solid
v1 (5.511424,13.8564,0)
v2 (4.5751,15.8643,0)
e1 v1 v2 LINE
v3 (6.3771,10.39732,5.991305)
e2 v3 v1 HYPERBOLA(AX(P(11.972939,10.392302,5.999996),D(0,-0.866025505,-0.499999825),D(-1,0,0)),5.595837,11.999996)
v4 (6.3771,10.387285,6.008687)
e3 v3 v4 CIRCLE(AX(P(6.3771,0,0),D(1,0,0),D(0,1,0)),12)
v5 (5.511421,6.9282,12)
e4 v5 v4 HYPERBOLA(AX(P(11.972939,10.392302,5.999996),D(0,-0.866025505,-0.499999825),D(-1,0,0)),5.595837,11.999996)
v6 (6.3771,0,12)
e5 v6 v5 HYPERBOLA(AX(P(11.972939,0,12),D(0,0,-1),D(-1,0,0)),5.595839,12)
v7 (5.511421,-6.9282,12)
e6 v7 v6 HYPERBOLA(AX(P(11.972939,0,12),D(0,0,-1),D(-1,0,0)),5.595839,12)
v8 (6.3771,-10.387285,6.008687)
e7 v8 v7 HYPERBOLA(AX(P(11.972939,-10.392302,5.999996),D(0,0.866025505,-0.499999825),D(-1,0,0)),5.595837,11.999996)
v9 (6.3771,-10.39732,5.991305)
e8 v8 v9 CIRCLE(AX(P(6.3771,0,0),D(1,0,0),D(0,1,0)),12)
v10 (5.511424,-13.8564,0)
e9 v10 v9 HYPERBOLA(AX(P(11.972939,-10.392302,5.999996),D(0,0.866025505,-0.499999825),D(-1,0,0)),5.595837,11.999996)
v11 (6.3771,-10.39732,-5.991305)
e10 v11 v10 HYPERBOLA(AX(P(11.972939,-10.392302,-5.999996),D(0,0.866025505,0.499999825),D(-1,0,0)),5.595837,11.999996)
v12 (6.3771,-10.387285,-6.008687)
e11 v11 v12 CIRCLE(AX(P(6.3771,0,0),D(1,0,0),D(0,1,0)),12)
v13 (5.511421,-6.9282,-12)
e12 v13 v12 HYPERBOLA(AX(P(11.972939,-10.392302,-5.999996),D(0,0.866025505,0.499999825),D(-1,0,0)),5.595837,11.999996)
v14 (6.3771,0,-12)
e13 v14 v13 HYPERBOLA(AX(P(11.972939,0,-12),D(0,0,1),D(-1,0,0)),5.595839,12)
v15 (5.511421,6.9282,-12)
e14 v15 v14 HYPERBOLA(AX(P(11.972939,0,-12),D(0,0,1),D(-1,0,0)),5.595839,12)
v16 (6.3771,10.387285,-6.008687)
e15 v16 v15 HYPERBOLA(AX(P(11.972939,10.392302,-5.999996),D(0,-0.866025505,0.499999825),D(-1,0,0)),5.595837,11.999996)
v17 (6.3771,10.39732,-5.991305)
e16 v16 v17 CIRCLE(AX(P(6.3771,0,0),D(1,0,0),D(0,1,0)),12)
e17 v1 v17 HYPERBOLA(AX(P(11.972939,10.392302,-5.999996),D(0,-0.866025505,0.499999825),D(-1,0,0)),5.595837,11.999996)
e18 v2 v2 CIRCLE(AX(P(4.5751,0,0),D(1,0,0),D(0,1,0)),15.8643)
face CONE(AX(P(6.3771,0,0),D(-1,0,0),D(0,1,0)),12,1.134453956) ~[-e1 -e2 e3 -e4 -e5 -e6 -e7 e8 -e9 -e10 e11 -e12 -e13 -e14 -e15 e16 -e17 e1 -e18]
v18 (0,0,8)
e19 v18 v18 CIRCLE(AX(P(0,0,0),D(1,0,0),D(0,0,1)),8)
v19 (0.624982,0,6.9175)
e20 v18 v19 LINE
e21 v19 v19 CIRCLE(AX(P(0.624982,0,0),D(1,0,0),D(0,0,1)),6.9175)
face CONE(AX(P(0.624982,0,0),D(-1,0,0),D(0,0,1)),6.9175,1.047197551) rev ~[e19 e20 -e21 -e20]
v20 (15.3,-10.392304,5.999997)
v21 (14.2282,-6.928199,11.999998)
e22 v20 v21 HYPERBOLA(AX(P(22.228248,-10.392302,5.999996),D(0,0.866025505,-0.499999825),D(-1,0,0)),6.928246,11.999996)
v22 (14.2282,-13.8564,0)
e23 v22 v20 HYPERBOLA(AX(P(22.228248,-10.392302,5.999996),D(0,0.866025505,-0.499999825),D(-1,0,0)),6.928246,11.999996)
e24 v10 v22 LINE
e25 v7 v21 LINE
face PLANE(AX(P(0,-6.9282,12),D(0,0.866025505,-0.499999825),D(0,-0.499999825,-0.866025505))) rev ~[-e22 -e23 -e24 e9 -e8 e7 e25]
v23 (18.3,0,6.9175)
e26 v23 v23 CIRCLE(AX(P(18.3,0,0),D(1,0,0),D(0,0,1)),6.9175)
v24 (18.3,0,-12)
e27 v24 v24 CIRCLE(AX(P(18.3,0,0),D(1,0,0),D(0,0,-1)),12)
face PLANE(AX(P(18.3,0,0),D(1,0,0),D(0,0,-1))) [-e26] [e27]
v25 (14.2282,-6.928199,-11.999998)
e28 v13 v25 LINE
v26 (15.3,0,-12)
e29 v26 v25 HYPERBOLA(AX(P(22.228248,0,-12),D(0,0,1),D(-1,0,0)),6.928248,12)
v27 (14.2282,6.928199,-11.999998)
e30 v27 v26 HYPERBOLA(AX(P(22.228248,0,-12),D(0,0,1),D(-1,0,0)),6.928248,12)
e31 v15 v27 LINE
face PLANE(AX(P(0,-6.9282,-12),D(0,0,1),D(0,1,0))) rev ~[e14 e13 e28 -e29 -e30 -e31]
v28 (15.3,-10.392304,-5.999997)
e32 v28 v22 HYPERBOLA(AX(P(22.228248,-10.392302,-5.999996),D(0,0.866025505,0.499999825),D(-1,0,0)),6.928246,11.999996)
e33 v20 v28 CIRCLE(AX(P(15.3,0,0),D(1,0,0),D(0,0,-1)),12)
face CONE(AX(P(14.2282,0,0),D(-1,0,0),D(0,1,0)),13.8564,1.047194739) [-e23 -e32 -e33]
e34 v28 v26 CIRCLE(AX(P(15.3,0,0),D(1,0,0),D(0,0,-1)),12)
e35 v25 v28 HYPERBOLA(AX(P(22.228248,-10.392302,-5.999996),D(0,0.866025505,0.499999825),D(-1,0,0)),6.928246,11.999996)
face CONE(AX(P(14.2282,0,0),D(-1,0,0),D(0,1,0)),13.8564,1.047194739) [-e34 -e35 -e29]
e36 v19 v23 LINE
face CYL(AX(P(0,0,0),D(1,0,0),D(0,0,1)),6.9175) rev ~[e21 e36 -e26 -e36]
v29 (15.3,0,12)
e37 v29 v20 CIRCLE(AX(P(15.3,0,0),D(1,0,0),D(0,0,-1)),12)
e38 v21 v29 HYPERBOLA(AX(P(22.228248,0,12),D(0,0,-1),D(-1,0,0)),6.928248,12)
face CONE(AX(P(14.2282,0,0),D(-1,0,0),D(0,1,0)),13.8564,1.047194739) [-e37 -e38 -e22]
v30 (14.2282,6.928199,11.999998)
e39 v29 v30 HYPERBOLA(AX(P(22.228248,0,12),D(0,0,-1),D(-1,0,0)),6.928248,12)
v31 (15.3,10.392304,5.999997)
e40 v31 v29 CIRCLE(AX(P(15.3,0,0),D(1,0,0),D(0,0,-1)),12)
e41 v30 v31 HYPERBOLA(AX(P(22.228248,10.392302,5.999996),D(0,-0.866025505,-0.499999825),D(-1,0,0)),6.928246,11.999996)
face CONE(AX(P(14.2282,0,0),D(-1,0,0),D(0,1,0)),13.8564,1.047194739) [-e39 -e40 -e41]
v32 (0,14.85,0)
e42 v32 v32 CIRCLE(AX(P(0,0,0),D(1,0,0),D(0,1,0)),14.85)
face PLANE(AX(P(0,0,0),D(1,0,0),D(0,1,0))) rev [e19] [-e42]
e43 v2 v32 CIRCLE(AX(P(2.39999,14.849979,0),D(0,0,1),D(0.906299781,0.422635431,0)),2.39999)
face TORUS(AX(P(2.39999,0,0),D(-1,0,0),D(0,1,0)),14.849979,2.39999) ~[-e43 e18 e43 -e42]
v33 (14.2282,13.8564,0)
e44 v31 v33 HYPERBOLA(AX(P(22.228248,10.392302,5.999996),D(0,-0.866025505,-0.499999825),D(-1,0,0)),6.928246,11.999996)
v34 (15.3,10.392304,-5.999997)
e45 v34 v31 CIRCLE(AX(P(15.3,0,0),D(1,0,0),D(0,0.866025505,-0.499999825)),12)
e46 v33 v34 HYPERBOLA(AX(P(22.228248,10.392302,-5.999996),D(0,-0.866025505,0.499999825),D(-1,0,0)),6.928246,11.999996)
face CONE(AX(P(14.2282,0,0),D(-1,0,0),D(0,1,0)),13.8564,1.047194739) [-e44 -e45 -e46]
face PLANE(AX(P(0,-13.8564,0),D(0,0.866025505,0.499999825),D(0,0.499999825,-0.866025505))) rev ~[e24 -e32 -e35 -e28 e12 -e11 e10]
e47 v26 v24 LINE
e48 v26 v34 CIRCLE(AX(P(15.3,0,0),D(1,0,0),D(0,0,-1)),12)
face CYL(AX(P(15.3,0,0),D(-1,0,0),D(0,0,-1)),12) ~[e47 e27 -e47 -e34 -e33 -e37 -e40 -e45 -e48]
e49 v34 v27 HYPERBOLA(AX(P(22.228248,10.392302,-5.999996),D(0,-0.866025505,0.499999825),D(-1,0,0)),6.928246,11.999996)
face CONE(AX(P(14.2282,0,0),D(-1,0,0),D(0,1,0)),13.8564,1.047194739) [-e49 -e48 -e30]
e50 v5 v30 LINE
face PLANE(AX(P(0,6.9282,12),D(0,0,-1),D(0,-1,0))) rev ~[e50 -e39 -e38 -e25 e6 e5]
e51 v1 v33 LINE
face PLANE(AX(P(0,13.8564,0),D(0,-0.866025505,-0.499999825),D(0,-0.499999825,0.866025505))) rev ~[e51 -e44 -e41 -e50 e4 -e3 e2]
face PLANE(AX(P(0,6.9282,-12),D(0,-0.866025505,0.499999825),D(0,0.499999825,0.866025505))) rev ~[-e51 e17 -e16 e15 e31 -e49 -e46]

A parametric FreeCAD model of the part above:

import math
import FreeCAD as App
import Part
import Sketcher
Q = App.Units.Quantity


def edges_at(feature, points):
    """Names of the edges that pass closest to the given points."""
    edges = feature.Shape.Edges
    near = lambda p: min(range(len(edges)), key=lambda i: edges[i].distToShape(Part.Vertex(*p))[0])
    return sorted({f"Edge{near(p) + 1}" for p in points})


def add_polygon(sketch, points):
    """Adds a closed chain of lines whose ends are joined by coincident constraints."""
    first, n = sketch.GeometryCount, len(points)
    for a, b in zip(points, points[1:] + points[:1]):
        sketch.addGeometry(Part.LineSegment(App.Vector(*a, 0), App.Vector(*b, 0)), False)
    for i in range(n):
        sketch.addConstraint(Sketcher.Constraint("Coincident", first + i, 2, first + (i + 1) % n, 1))

doc = App.newDocument("Part")
body = doc.addObject("PartDesign::Body", "Body")

# Sketch on XY plane
sketch1 = doc.addObject("Sketcher::SketchObject", "Sketch")
body.addObject(sketch1)
sketch1.AttachmentSupport = (doc.XY_Plane, [""])
sketch1.MapMode = "FlatFace"
sketch1.addGeometry([
    Part.LineSegment(App.Vector(0, 14.85, 0), App.Vector(0, 0, 0)),  # 0
    Part.LineSegment(App.Vector(0, 0, 0), App.Vector(6.3771, 0, 0)),  # 1
    Part.LineSegment(App.Vector(6.3771, 0, 0), App.Vector(6.3771, 12, 0)),  # 2
    Part.LineSegment(App.Vector(6.3771, 12, 0), App.Vector(4.5751, 15.8643, 0)),  # 3
    Part.ArcOfCircle(Part.Circle(App.Vector(2.4, 14.85, 0), App.Vector(0, 0, 1), 2.399972), math.radians(25.00074), math.radians(180)),  # 4
], False)
sketch1.addConstraint([
    Sketcher.Constraint("Coincident", 0, 2, 1, 1),
    Sketcher.Constraint("Coincident", 1, 2, 2, 1),
    Sketcher.Constraint("Coincident", 2, 2, 3, 1),
    Sketcher.Constraint("Tangent", 3, 2, 4, 1),
    Sketcher.Constraint("Tangent", 4, 2, 0, 1),
    Sketcher.Constraint("Vertical", 0),
    Sketcher.Constraint("Horizontal", 1),
    Sketcher.Constraint("Vertical", 2),
    Sketcher.Constraint("Coincident", 0, 2, -1, 1),
    Sketcher.Constraint("Radius", 4, Q("2.4 mm")),
    Sketcher.Constraint("DistanceY", 2, 1, 2, 2, Q("12 mm")),
    Sketcher.Constraint("Angle", 3, Q("115.0006 deg")),
    Sketcher.Constraint("DistanceY", 0, 2, 0, 1, Q("14.85 mm")),
])
revolution = doc.addObject("PartDesign::Revolution", "Revolution")
body.addObject(revolution)
revolution.Profile = sketch1
revolution.ReferenceAxis = (sketch1, ["H_Axis"])
revolution.Angle = 360

# Sketch on YZ plane
sketch2 = doc.addObject("Sketcher::SketchObject", "Sketch001")
body.addObject(sketch2)
sketch2.AttachmentSupport = (doc.YZ_Plane, [""])
sketch2.MapMode = "FlatFace"
add_polygon(sketch2, [(6.9282, -12), (-6.9282, -12), (-13.8564, 0), (-6.9282, 12), (6.9282, 12), (13.8564, 0)])  # lines 0-5
sketch2.addConstraint([
    Sketcher.Constraint("Horizontal", 0),
    Sketcher.Constraint("Horizontal", 3),
    Sketcher.Constraint("Symmetric", 0, 2, 3, 2, -1, 1),
    Sketcher.Constraint("Symmetric", 1, 2, 4, 2, -1, 1),
    Sketcher.Constraint("PointOnObject", 1, 2, -1),
    Sketcher.Constraint("Parallel", 2, 5),
    Sketcher.Constraint("Vertical", 0, 2, 2, 2),
    Sketcher.Constraint("Angle", 1, Q("120 deg")),
    Sketcher.Constraint("DistanceY", 0, 2, -1, 1, Q("12 mm")),
    Sketcher.Constraint("DistanceX", 1, 2, 4, 2, Q("27.7128 mm")),
])
pad1 = doc.addObject("PartDesign::Pad", "Pad")
body.addObject(pad1)
pad1.Profile = sketch2
pad1.Length = 15.3

# Sketch on YZ plane
sketch3 = doc.addObject("Sketcher::SketchObject", "Sketch002")
body.addObject(sketch3)
sketch3.AttachmentSupport = (doc.YZ_Plane, [""])
sketch3.MapMode = "FlatFace"
sketch3.AttachmentOffset = App.Placement(App.Vector(0, 0, 15.3), App.Rotation())
sketch3.addGeometry(Part.Circle(App.Vector(0, 0, 0), App.Vector(0, 0, 1), 12), False)
sketch3.addConstraint([
    Sketcher.Constraint("Coincident", 0, 3, -1, 1),
    Sketcher.Constraint("Diameter", 0, Q("24 mm")),
])
pad2 = doc.addObject("PartDesign::Pad", "Pad001")
body.addObject(pad2)
pad2.Profile = sketch3
pad2.Length = 3

# Sketch on YZ plane
sketch4 = doc.addObject("Sketcher::SketchObject", "Sketch003")
body.addObject(sketch4)
sketch4.AttachmentSupport = (doc.YZ_Plane, [""])
sketch4.MapMode = "FlatFace"
sketch4.addGeometry(Part.Circle(App.Vector(0, 0, 0), App.Vector(0, 0, 1), 6.9175), False)
sketch4.addConstraint([
    Sketcher.Constraint("Coincident", 0, 3, -1, 1),
    Sketcher.Constraint("Diameter", 0, Q("13.835 mm")),
])
doc.recompute()
hole = doc.addObject("PartDesign::Hole", "Hole")
body.addObject(hole)
hole.Profile = sketch4
hole.ThreadType = "None"
hole.Diameter = 13.835
hole.DepthType = "ThroughAll"
hole.Reversed = True

# Sketch on XY plane
sketch5 = doc.addObject("Sketcher::SketchObject", "Sketch004")
body.addObject(sketch5)
sketch5.AttachmentSupport = (doc.XY_Plane, [""])
sketch5.MapMode = "FlatFace"
add_polygon(sketch5, [(15.3, 13.8564), (14.2282, 13.8564), (15.3, 12)])  # lines 0-2
sketch5.addConstraint([
    Sketcher.Constraint("Horizontal", 0),
    Sketcher.Constraint("Vertical", 2),
    Sketcher.Constraint("Angle", 1, Q("-59.9998 deg")),
    Sketcher.Constraint("DistanceY", -1, 1, 1, 2, Q("12 mm")),
    Sketcher.Constraint("DistanceX", -1, 1, 1, 2, Q("15.3 mm")),
    Sketcher.Constraint("DistanceX", 0, 2, 0, 1, Q("1.0718 mm")),
])
groove = doc.addObject("PartDesign::Groove", "Groove")
body.addObject(groove)
groove.Profile = sketch5
groove.ReferenceAxis = (sketch5, ["H_Axis"])
groove.Angle = 360
doc.recompute()

chamfer = doc.addObject("PartDesign::Chamfer", "Chamfer")
body.addObject(chamfer)
chamfer.Base = (groove, edges_at(groove, [(0, 0, -6.918)]))
chamfer.ChamferType = "Distance and Angle"
chamfer.Size = 1.0825
chamfer.Angle = 30

doc.recompute()
